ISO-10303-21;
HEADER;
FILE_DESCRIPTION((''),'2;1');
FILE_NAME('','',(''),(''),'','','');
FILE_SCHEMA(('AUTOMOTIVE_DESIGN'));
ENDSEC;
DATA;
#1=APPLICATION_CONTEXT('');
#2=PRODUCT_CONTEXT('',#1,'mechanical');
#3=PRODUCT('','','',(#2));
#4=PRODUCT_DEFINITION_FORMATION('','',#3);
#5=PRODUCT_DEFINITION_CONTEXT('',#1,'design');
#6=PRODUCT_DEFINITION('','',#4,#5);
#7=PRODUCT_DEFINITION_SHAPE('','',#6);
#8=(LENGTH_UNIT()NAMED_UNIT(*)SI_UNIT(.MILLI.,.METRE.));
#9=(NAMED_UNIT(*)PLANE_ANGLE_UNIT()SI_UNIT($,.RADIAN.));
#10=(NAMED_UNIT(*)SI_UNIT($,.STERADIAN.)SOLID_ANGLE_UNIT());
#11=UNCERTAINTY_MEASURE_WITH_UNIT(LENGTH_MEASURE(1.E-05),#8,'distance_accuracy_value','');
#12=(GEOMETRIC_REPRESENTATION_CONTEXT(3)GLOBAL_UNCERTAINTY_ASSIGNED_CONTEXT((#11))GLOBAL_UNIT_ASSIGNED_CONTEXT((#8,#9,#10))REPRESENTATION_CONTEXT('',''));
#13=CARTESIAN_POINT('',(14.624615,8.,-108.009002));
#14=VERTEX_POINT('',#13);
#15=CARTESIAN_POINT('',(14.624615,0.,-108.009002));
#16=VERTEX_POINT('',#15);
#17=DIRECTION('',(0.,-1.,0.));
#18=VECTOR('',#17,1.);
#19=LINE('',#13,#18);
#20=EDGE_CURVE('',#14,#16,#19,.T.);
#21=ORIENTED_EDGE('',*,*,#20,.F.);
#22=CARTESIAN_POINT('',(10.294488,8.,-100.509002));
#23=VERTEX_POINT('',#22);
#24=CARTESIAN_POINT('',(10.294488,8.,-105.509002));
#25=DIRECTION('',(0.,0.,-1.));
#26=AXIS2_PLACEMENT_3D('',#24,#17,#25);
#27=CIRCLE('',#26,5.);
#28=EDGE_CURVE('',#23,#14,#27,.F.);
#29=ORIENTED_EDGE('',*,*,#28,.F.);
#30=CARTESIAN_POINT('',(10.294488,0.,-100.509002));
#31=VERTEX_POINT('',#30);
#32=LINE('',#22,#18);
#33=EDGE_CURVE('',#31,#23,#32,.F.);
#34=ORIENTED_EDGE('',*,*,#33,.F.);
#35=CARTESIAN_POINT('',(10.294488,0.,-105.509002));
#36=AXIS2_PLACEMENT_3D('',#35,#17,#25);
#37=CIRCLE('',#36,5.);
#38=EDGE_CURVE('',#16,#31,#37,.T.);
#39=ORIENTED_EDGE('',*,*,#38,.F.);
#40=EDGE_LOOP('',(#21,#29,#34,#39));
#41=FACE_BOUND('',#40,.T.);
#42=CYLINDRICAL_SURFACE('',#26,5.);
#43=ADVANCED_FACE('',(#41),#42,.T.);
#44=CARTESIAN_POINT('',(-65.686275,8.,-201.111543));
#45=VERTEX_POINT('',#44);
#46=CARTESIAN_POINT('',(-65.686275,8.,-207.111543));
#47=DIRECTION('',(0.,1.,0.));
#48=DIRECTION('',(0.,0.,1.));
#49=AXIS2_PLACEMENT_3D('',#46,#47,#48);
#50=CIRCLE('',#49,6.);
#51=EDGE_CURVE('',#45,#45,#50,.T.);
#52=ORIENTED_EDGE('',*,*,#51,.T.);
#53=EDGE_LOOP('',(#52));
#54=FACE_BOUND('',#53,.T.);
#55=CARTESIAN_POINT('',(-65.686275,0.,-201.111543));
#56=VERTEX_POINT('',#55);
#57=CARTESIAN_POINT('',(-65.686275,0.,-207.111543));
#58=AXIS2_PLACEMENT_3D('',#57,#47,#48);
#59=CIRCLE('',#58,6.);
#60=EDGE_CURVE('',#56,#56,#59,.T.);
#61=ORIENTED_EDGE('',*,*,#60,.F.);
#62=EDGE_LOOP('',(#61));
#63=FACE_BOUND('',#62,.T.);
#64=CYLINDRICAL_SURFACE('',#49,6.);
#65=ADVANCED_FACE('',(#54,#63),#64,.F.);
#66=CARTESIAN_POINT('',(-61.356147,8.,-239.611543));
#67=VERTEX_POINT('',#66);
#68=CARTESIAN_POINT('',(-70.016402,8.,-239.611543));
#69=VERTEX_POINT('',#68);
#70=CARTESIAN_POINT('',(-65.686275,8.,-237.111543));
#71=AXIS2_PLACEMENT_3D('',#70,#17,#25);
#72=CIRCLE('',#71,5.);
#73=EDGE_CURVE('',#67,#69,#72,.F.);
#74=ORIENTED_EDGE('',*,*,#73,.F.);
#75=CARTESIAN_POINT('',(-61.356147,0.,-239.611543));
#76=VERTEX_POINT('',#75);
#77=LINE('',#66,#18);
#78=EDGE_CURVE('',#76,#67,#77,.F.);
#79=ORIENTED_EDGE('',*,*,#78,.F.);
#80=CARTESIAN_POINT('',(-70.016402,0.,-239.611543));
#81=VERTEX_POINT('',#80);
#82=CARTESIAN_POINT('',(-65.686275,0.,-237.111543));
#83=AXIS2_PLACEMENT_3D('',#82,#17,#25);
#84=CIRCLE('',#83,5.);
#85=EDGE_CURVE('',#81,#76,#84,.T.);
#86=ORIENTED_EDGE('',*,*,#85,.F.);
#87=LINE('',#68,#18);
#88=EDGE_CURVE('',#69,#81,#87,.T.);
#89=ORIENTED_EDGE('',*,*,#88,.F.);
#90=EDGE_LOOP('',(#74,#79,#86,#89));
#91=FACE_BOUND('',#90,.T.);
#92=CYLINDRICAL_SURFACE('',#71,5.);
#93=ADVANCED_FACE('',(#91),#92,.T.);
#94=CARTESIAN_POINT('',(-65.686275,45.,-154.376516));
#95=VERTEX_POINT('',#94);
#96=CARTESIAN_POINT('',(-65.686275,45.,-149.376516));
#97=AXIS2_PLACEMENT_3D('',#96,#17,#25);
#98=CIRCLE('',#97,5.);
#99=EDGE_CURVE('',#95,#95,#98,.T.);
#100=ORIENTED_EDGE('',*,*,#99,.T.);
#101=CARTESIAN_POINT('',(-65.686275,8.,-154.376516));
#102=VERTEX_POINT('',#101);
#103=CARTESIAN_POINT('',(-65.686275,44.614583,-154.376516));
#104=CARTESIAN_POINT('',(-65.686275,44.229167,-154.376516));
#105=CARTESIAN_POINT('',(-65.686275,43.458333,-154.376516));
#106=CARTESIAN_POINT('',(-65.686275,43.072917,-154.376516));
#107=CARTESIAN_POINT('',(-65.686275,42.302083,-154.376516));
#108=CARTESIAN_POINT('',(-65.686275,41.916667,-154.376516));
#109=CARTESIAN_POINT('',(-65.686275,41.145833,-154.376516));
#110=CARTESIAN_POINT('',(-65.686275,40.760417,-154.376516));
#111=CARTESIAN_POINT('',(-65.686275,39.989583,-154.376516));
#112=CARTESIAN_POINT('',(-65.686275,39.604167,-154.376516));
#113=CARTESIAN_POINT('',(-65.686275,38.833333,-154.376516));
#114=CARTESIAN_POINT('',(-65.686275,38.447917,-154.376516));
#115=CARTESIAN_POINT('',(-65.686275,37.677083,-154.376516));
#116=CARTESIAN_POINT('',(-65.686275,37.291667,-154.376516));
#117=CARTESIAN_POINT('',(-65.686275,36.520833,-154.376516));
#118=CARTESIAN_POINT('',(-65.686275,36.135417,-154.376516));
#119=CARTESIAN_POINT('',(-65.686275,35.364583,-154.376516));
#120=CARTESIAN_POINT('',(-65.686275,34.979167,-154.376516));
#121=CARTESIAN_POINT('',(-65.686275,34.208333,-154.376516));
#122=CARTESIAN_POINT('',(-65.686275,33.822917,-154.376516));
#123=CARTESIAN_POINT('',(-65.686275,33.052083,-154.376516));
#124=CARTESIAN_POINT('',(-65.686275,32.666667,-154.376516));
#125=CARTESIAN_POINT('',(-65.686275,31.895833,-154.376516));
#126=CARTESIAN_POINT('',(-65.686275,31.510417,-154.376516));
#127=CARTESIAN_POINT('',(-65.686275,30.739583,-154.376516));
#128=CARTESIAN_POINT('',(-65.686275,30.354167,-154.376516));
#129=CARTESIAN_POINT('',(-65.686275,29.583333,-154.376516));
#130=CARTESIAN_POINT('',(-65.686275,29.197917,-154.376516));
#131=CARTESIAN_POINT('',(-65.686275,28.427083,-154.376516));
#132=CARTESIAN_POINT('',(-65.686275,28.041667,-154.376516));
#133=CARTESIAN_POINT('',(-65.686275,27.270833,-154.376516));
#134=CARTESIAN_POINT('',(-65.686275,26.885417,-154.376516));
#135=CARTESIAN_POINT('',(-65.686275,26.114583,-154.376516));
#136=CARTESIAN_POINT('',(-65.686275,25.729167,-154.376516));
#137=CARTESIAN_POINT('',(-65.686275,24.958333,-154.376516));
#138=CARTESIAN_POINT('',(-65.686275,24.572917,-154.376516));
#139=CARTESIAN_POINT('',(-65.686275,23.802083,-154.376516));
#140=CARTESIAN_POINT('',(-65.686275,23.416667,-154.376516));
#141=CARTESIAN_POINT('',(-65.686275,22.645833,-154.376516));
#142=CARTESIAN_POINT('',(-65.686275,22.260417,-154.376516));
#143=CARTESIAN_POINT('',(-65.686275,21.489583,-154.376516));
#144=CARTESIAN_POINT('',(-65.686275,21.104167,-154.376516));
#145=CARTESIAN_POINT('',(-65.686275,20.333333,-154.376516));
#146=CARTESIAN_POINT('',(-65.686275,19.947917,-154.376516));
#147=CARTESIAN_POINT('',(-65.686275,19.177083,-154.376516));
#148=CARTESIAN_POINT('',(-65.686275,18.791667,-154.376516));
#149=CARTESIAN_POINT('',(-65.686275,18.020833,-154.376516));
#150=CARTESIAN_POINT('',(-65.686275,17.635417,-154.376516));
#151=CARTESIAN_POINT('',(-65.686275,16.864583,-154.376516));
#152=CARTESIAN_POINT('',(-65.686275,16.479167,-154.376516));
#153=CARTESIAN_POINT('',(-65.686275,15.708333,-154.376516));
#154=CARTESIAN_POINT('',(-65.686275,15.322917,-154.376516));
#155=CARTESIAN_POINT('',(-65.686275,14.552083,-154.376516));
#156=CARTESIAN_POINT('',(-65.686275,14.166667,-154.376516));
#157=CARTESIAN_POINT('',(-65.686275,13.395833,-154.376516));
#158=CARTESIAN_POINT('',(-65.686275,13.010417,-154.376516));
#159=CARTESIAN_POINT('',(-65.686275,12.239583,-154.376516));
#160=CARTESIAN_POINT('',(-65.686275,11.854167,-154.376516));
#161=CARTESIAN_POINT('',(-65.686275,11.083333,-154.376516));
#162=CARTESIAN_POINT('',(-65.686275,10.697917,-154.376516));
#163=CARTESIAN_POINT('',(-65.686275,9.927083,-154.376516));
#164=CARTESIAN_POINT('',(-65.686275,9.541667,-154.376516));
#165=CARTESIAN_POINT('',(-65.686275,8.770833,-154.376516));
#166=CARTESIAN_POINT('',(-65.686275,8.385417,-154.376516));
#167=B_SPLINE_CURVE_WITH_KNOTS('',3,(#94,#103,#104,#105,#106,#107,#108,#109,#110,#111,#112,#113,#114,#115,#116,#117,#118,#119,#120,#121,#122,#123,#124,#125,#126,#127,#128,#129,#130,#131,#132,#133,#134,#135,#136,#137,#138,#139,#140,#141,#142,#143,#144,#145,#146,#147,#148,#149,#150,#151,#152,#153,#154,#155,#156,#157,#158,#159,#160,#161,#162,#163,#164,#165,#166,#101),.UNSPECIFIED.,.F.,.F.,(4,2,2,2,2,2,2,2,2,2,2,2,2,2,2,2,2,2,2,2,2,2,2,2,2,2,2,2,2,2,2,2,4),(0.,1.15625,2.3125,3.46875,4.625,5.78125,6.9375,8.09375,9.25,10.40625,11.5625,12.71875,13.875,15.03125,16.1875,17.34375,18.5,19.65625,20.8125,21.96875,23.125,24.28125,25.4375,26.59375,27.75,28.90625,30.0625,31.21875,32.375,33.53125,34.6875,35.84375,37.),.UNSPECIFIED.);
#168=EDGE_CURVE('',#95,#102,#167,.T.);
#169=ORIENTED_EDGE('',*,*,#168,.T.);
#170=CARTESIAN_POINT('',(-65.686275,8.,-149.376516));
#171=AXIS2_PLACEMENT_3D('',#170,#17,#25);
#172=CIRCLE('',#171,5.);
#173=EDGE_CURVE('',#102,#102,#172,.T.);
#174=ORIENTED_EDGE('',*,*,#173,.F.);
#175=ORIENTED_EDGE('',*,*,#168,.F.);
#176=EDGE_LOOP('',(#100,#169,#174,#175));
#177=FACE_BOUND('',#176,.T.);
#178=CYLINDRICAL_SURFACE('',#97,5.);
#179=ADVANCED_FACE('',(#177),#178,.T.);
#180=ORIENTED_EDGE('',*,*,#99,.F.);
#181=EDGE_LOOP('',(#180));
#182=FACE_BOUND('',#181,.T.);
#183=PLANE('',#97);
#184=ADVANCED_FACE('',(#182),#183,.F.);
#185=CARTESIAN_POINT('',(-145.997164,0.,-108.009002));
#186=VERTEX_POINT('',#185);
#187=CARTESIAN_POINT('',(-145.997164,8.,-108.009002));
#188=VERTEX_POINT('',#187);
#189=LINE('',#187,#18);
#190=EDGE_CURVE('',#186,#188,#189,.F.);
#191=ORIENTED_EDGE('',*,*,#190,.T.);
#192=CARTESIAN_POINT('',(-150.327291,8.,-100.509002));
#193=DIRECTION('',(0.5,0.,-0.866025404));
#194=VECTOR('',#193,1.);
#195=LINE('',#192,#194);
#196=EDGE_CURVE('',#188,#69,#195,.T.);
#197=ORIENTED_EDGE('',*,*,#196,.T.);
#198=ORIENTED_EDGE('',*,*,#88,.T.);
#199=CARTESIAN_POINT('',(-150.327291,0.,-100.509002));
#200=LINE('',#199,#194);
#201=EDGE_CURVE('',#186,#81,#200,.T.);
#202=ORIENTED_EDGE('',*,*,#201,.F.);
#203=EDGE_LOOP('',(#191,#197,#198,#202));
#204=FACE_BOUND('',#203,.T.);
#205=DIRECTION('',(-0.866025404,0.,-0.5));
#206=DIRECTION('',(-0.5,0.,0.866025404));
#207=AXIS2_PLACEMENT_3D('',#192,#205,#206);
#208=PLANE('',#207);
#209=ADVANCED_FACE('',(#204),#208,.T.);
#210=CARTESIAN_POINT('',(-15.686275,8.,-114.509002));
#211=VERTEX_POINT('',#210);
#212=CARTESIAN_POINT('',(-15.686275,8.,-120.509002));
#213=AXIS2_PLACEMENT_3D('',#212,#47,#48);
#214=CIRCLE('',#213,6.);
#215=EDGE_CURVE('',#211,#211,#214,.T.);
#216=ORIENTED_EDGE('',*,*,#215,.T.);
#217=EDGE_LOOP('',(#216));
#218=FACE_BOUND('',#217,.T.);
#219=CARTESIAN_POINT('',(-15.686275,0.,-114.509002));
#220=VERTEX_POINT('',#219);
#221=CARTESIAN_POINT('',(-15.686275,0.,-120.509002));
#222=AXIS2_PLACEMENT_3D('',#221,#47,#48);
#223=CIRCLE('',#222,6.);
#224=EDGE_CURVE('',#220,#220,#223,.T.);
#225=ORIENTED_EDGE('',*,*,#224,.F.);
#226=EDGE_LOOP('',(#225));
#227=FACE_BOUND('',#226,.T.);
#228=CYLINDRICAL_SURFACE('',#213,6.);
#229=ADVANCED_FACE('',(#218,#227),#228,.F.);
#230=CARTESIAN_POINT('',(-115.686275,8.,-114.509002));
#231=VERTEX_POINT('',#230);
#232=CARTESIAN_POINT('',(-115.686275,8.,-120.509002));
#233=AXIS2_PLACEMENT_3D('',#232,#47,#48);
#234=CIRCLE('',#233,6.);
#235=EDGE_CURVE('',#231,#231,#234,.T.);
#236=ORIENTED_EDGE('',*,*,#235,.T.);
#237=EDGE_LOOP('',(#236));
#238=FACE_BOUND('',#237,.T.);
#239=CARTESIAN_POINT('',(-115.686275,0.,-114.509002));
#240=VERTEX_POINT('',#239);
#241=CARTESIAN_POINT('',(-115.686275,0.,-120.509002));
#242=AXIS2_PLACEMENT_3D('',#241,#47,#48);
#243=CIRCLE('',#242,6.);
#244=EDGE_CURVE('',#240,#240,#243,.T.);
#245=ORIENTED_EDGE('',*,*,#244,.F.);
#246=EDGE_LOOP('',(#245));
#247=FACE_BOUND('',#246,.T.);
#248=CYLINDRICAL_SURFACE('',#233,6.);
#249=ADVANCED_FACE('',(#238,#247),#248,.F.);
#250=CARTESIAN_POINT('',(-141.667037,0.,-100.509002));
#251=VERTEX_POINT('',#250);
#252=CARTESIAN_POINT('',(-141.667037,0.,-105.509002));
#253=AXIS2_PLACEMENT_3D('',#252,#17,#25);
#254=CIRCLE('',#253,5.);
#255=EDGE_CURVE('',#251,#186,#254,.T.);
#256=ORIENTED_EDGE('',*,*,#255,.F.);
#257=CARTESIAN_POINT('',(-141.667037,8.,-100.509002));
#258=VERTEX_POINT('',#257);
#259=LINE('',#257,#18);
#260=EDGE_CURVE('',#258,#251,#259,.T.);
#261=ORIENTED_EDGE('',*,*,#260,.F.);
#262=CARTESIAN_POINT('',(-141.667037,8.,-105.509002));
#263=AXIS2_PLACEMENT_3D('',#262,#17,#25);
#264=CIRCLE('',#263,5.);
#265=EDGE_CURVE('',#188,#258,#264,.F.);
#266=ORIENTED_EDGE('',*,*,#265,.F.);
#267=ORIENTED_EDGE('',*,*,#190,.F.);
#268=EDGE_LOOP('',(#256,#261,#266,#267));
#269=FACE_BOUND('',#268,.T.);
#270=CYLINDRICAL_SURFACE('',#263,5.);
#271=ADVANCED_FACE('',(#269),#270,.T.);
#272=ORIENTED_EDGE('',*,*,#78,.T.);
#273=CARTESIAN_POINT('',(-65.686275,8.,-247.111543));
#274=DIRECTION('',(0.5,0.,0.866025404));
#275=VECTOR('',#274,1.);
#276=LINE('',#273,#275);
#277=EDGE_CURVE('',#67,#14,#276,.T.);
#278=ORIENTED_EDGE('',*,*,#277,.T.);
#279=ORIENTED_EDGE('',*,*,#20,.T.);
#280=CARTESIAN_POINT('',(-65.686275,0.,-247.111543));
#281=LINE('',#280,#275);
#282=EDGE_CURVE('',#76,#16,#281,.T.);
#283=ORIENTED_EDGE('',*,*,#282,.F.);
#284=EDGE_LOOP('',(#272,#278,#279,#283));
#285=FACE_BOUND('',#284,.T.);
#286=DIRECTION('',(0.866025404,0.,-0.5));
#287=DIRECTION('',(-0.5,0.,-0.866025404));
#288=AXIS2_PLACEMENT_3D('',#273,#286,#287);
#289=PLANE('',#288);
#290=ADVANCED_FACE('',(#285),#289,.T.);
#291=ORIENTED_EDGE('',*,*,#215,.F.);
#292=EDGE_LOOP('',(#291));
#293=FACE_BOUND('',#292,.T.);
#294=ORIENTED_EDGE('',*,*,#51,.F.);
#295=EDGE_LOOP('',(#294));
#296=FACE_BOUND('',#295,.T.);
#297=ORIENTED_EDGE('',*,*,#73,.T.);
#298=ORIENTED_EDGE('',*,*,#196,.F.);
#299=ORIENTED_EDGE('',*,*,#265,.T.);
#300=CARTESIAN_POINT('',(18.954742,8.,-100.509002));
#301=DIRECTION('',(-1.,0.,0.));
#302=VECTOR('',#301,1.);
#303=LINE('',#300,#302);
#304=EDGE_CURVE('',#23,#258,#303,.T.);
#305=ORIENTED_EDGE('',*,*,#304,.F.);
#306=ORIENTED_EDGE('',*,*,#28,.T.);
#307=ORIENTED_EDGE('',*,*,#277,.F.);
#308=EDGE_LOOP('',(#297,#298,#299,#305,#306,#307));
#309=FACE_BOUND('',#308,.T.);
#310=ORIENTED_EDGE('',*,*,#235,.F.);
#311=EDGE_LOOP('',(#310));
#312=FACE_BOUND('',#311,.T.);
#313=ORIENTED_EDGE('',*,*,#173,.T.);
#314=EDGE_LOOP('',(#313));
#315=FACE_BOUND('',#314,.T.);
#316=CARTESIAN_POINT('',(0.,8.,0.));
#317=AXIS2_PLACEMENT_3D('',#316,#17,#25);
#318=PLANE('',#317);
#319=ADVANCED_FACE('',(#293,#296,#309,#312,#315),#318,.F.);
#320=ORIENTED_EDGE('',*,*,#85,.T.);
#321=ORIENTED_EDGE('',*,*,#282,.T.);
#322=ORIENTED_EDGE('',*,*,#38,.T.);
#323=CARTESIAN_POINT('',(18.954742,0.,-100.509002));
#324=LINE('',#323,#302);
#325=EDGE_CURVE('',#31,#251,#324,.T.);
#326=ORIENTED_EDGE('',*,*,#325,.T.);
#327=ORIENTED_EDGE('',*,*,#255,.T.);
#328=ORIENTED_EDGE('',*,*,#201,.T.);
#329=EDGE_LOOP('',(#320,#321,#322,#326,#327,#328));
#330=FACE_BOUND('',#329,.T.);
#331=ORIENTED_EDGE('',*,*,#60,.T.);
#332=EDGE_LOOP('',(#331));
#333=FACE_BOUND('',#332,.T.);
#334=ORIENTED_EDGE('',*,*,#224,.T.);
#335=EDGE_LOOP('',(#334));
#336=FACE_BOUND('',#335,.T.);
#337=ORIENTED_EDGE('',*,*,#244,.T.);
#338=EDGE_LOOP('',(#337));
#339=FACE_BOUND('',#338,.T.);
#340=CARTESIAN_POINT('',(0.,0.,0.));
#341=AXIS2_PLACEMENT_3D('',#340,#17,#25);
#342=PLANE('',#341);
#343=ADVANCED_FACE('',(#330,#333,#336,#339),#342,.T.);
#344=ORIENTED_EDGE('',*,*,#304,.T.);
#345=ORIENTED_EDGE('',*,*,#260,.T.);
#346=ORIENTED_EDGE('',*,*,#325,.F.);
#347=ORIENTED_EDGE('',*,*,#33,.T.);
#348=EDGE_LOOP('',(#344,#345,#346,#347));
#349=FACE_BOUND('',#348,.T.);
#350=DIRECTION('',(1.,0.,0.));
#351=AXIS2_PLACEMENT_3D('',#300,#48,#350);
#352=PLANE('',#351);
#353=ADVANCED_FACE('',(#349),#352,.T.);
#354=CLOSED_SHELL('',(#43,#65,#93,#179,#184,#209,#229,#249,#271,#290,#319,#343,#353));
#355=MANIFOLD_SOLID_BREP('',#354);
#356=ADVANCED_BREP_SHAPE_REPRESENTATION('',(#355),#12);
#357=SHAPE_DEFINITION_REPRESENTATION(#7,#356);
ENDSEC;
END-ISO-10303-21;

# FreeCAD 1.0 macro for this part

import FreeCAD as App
import Part
import Sketcher

V = App.Vector
Q = App.Units.Quantity


def edges_at(feature, points):
    """Names of the edges that pass closest to the given points."""
    edges = feature.Shape.Edges
    near = lambda p: min(range(len(edges)), key=lambda i: edges[i].distToShape(Part.Vertex(*p))[0])
    return sorted({f"Edge{near(p) + 1}" for p in points})


def add_polygon(sketch, points):
    """Adds a closed chain of lines whose ends are joined by coincident constraints."""
    first, n = sketch.GeometryCount, len(points)
    for a, b in zip(points, points[1:] + points[:1]):
        sketch.addGeometry(Part.LineSegment(App.Vector(*a, 0), App.Vector(*b, 0)), False)
    for i in range(n):
        sketch.addConstraint(Sketcher.Constraint("Coincident", first + i, 2, first + (i + 1) % n, 1))

doc = App.newDocument("Part")
body = doc.addObject("PartDesign::Body", "Body")

sketch1 = doc.addObject("Sketcher::SketchObject", "Sketch")
body.addObject(sketch1)
sketch1.AttachmentSupport = (doc.XZ_Plane, [""])
sketch1.MapMode = "FlatFace"
add_polygon(sketch1, [(19, -101), (-66, -247), (-150, -101)])
sketch1.addConstraint([
    Sketcher.Constraint("Horizontal", 2),
    Sketcher.Constraint("Equal", 0, 1),
    Sketcher.Constraint("Angle", 0, Q("-120 deg")),
    Sketcher.Constraint("DistanceX", 2, 1, 2, 2, 169.282032),
    Sketcher.Constraint("DistanceX", 1, 2, -1, 1, 150.327291),
    Sketcher.Constraint("DistanceY", 0, 2, -1, 1, 247.111543),
])
pad1 = doc.addObject("PartDesign::Pad", "Pad")
body.addObject(pad1)
pad1.Profile = sketch1
pad1.Length = 8
pad1.Reversed = True

sketch2 = doc.addObject("Sketcher::SketchObject", "Sketch001")
body.addObject(sketch2)
sketch2.AttachmentSupport = (doc.XZ_Plane, [""])
sketch2.MapMode = "FlatFace"
sketch2.AttachmentOffset = App.Placement(V(0, 0, -8), App.Rotation())
sketch2.addGeometry([
    Part.Circle(V(-66, -207, 0), V(0, 0, 1), 6),
    Part.Circle(V(-116, -121, 0), V(0, 0, 1), 6),
    Part.Circle(V(-16, -121, 0), V(0, 0, 1), 6),
], False)
sketch2.addConstraint([
    Sketcher.Constraint("Equal", 0, 1),
    Sketcher.Constraint("Equal", 1, 2),
    Sketcher.Constraint("Horizontal", 1, 3, 2, 3),
    Sketcher.Constraint("Diameter", 0, 12.0),
    Sketcher.Constraint("DistanceX", 1, 3, 0, 3, 50.0),
    Sketcher.Constraint("DistanceX", 0, 3, 2, 3, 50.0),
    Sketcher.Constraint("DistanceY", 0, 3, 1, 3, 86.60254),
    Sketcher.Constraint("DistanceX", 0, 3, -1, 1, 65.686275),
    Sketcher.Constraint("DistanceY", 0, 3, -1, 1, 207.111543),
])
doc.recompute()
hole = doc.addObject("PartDesign::Hole", "Hole")
body.addObject(hole)
hole.Profile = sketch2
hole.ThreadType = "None"
hole.Diameter = 12
hole.DepthType = "ThroughAll"
hole.Reversed = True

sketch3 = doc.addObject("Sketcher::SketchObject", "Sketch002")
body.addObject(sketch3)
sketch3.AttachmentSupport = (doc.XZ_Plane, [""])
sketch3.MapMode = "FlatFace"
sketch3.addGeometry(Part.Circle(V(-66, -149, 0), V(0, 0, 1), 5), False)
sketch3.addConstraint([
    Sketcher.Constraint("Diameter", 0, 10.0),
    Sketcher.Constraint("DistanceX", 0, 3, -1, 1, 65.686275),
    Sketcher.Constraint("DistanceY", 0, 3, -1, 1, 149.376516),
])
pad2 = doc.addObject("PartDesign::Pad", "Pad001")
body.addObject(pad2)
pad2.Profile = sketch3
pad2.Length = 45
pad2.Reversed = True
doc.recompute()

fillet = doc.addObject("PartDesign::Fillet", "Fillet")
body.addObject(fillet)
fillet.Base = (pad2, edges_at(pad2, [(-150.327, 4, -100.509), (18.955, 4, -100.509), (-65.686, 4, -247.112)]))
fillet.Radius = 5

doc.recompute()
